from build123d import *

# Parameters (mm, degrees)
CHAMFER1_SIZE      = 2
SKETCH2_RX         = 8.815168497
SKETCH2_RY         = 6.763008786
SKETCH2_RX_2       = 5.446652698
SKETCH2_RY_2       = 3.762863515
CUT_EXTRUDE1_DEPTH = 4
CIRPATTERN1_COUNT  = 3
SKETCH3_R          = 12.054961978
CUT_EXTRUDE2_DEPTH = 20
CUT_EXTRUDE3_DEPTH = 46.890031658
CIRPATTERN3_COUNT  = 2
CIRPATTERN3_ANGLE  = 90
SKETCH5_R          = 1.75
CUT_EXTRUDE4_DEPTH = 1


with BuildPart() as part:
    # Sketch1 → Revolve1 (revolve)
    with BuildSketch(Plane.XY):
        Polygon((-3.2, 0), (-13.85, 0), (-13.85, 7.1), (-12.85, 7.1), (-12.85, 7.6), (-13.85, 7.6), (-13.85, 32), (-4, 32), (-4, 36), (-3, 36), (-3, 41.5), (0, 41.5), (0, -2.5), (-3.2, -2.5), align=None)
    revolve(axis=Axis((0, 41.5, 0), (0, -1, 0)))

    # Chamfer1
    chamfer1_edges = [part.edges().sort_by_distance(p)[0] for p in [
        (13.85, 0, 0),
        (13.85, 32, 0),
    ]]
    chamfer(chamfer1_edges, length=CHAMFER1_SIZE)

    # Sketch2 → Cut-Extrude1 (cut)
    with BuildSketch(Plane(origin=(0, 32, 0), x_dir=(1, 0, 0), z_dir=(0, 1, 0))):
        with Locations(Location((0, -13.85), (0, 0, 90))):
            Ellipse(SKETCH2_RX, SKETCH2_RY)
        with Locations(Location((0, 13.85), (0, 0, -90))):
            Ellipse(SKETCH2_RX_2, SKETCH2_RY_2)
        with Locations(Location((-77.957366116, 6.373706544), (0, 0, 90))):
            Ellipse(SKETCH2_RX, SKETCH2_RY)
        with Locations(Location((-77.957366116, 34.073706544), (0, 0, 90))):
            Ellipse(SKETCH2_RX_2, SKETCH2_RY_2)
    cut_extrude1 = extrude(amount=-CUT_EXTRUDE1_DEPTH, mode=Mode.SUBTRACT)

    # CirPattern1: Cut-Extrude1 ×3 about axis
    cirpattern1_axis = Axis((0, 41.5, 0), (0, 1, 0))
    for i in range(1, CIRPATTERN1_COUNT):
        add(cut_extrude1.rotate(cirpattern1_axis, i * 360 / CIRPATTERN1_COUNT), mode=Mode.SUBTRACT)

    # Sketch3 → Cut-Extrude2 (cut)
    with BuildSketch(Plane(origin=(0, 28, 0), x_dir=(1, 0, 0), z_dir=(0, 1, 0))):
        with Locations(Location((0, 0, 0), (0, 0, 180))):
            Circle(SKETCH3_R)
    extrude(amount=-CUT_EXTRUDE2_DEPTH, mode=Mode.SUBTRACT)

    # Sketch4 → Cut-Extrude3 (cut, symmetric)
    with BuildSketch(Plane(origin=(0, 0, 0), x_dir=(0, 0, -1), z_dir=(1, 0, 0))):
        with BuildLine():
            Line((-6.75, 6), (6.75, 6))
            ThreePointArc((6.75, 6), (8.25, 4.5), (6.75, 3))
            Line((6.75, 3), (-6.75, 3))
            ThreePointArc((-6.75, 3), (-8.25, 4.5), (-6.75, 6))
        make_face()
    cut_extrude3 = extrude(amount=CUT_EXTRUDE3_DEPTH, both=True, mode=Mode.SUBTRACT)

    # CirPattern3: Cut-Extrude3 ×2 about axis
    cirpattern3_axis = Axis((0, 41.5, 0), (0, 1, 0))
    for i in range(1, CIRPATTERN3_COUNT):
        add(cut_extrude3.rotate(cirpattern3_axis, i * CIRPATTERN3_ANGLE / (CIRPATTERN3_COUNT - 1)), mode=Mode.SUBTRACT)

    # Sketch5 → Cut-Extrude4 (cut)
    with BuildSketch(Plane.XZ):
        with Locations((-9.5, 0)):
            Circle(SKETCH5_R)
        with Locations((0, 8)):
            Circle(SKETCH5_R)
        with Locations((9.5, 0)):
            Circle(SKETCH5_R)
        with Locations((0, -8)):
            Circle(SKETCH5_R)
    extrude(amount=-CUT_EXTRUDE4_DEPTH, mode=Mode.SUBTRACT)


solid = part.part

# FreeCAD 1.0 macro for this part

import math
import FreeCAD as App
import Part
import Sketcher

V = App.Vector


def edges_at(feature, points):
    """Names of the edges that pass closest to the given points."""
    edges = feature.Shape.Edges
    near = lambda p: min(range(len(edges)), key=lambda i: edges[i].distToShape(Part.Vertex(*p))[0])
    return sorted({f"Edge{near(p) + 1}" for p in points})


def add_polygon(sketch, points):
    """Adds a closed chain of lines whose ends are joined by coincident constraints."""
    first, n = sketch.GeometryCount, len(points)
    for a, b in zip(points, points[1:] + points[:1]):
        sketch.addGeometry(Part.LineSegment(App.Vector(*a, 0), App.Vector(*b, 0)), False)
    for i in range(n):
        sketch.addConstraint(Sketcher.Constraint("Coincident", first + i, 2, first + (i + 1) % n, 1))

doc = App.newDocument("Part")
body = doc.addObject("PartDesign::Body", "Body")

# Sketch on XY plane
sketch1 = body.newObject("Sketcher::SketchObject", "Sketch")
sketch1.AttachmentSupport = (doc.getObject("XY_Plane"), [""])
sketch1.MapMode = "FlatFace"
add_polygon(sketch1, [(-13.8, 0), (-3.2, 0), (-3.2, -2.5), (0, -2.5), (0, 41.5), (-3, 41.5), (-3, 36), (-4, 36), (-4, 32), (-13.8, 32), (-13.8, 7.6), (-12.8, 7.6), (-12.8, 7.1), (-13.8, 7.1)])  # lines 0-13
sketch1.addConstraint([
    Sketcher.Constraint("Horizontal", 0),
    Sketcher.Constraint("Vertical", 1),
    Sketcher.Constraint("Horizontal", 2),
    Sketcher.Constraint("Vertical", 3),
    Sketcher.Constraint("Horizontal", 4),
    Sketcher.Constraint("Vertical", 5),
    Sketcher.Constraint("Horizontal", 6),
    Sketcher.Constraint("Vertical", 7),
    Sketcher.Constraint("Horizontal", 8),
    Sketcher.Constraint("Vertical", 9),
    Sketcher.Constraint("Horizontal", 10),
    Sketcher.Constraint("Vertical", 11),
    Sketcher.Constraint("Horizontal", 12),
    Sketcher.Constraint("Vertical", 13),
    Sketcher.Constraint("PointOnObject", 0, 2, -1),
    Sketcher.Constraint("PointOnObject", 2, 2, -2),
    Sketcher.Constraint("Vertical", 9, 2, 12, 2),
    Sketcher.Constraint("Equal", 6, 10),
    Sketcher.Constraint("DistanceX", 4, 2, 4, 1, 3.0),
    Sketcher.Constraint("DistanceX", 6, 2, 6, 1, 1.0),
    Sketcher.Constraint("DistanceY", 3, 1, 3, 2, 44.0),
    Sketcher.Constraint("DistanceY", 7, 2, 7, 1, 4.0),
    Sketcher.Constraint("DistanceX", 2, 1, 2, 2, 3.2),
    Sketcher.Constraint("DistanceY", 1, 2, 1, 1, 2.5),
    Sketcher.Constraint("DistanceY", 5, 2, 5, 1, 5.5),
    Sketcher.Constraint("DistanceY", 9, 2, 9, 1, 24.4),
    Sketcher.Constraint("DistanceY", 11, 2, 11, 1, 0.5),
    Sketcher.Constraint("DistanceX", 0, 1, 0, 2, 10.65),
])
revolution = body.newObject("PartDesign::Revolution", "Revolution")
revolution.Profile = sketch1
revolution.ReferenceAxis = (sketch1, ["V_Axis"])
revolution.Angle = 360
doc.recompute()

chamfer = body.newObject("PartDesign::Chamfer", "Chamfer")
chamfer.Base = (revolution, edges_at(revolution, [(13.85, 0, 0), (13.85, 32, 0)]))
chamfer.Size = 2

# Sketch on XZ plane
sketch2 = body.newObject("Sketcher::SketchObject", "Sketch001")
sketch2.AttachmentSupport = (doc.getObject("XZ_Plane"), [""])
sketch2.MapMode = "FlatFace"
sketch2.AttachmentOffset = App.Placement(V(0, 0, -32), App.Rotation())
sketch2.addGeometry([
    Part.Ellipse(V(0, 5.034832, 0), V(6.763009, 13.85, 0), V(0, 13.85, 0)),
    Part.Ellipse(V(0, -8.403347, 0), V(-3.762864, -13.85, 0), V(0, -13.85, 0)),
    Part.Ellipse(V(-77.957366, -15.188875, 0), V(-71.194357, -6.373707, 0), V(-77.957366, -6.373707, 0)),
    Part.Ellipse(V(-77.957366, -39.520359, 0), V(-74.194503, -34.073707, 0), V(-77.957366, -34.073707, 0)),
], False)
sketch2.addConstraint([
    Sketcher.Constraint("Block", 0),
    Sketcher.Constraint("Block", 1),
    Sketcher.Constraint("Block", 2),
    Sketcher.Constraint("Block", 3),
])
pocket1 = body.newObject("PartDesign::Pocket", "Pocket")
pocket1.Profile = sketch2
pocket1.Length = 4
pocket1.Reversed = True
doc.recompute()

polarpattern = body.newObject("PartDesign::PolarPattern", "PolarPattern")
polarpattern.Originals = [pocket1]
polarpattern.Axis = (doc.getObject("Y_Axis"), [""])
polarpattern.Angle = 360
polarpattern.Occurrences = 3
body.Tip = polarpattern

# Sketch on XZ plane
sketch3 = body.newObject("Sketcher::SketchObject", "Sketch002")
sketch3.AttachmentSupport = (doc.getObject("XZ_Plane"), [""])
sketch3.MapMode = "FlatFace"
sketch3.AttachmentOffset = App.Placement(V(0, 0, -28), App.Rotation())
sketch3.addGeometry(Part.Circle(V(0, 0, 0), V(0, 0, 1), 12), False)
sketch3.addConstraint([
    Sketcher.Constraint("Coincident", 0, 3, -1, 1),
    Sketcher.Constraint("Diameter", 0, 24.109924),
])
pocket2 = body.newObject("PartDesign::Pocket", "Pocket001")
pocket2.Profile = sketch3
pocket2.Length = 20
pocket2.Reversed = True

# Sketch on YZ plane
sketch4 = body.newObject("Sketcher::SketchObject", "Sketch003")
sketch4.AttachmentSupport = (doc.getObject("YZ_Plane"), [""])
sketch4.MapMode = "FlatFace"
sketch4.addGeometry([
    Part.LineSegment(V(6, -6.8, 0), V(6, 6.8, 0)),
    Part.ArcOfCircle(Part.Circle(V(4.5, 6.8, 0), V(0, 0, 1), 1.5), math.radians(0), math.radians(180)),
    Part.LineSegment(V(3, 6.8, 0), V(3, -6.8, 0)),
    Part.ArcOfCircle(Part.Circle(V(4.5, -6.8, 0), V(0, 0, 1), 1.5), math.radians(180), math.radians(360)),
], False)
sketch4.addConstraint([
    Sketcher.Constraint("Tangent", 0, 2, 1, 1),
    Sketcher.Constraint("Tangent", 1, 2, 2, 1),
    Sketcher.Constraint("Tangent", 2, 2, 3, 1),
    Sketcher.Constraint("Tangent", 3, 2, 0, 1),
    Sketcher.Constraint("Vertical", 0),
    Sketcher.Constraint("Vertical", 2),
    Sketcher.Constraint("Radius", 1, 1.5),
    Sketcher.Constraint("DistanceY", 0, 1, 0, 2, 13.5),
    Sketcher.Constraint("DistanceX", -1, 1, 0, 2, 6.0),
    Sketcher.Constraint("DistanceY", -1, 1, 1, 3, 6.75),
])
pocket3 = body.newObject("PartDesign::Pocket", "Pocket002")
pocket3.Profile = sketch4
pocket3.Length = 93.780063
pocket3.Midplane = True
doc.recompute()

polarpattern2 = body.newObject("PartDesign::PolarPattern", "PolarPattern001")
polarpattern2.Originals = [pocket3]
polarpattern2.Axis = (doc.getObject("Y_Axis"), [""])
polarpattern2.Angle = 90
polarpattern2.Occurrences = 2
body.Tip = polarpattern2

# Sketch on XZ plane
sketch5 = body.newObject("Sketcher::SketchObject", "Sketch004")
sketch5.AttachmentSupport = (doc.getObject("XZ_Plane"), [""])
sketch5.MapMode = "FlatFace"
sketch5.addGeometry([
    Part.Circle(V(-9.5, 0, 0), V(0, 0, 1), 1.8),
    Part.Circle(V(0, 8, 0), V(0, 0, 1), 1.8),
    Part.Circle(V(9.5, 0, 0), V(0, 0, 1), 1.8),
    Part.Circle(V(0, -8, 0), V(0, 0, 1), 1.8),
], False)
sketch5.addConstraint([
    Sketcher.Constraint("Equal", 0, 1),
    Sketcher.Constraint("Equal", 1, 2),
    Sketcher.Constraint("Equal", 2, 3),
    Sketcher.Constraint("Symmetric", 0, 3, 2, 3, -1, 1),
    Sketcher.Constraint("Symmetric", 1, 3, 3, 3, -1, 1),
    Sketcher.Constraint("PointOnObject", 0, 3, -1),
    Sketcher.Constraint("PointOnObject", 1, 3, -2),
    Sketcher.Constraint("Diameter", 0, 3.5),
    Sketcher.Constraint("DistanceY", -1, 1, 1, 3, 8.0),
    Sketcher.Constraint("DistanceX", 0, 3, 2, 3, 19.0),
])
pocket4 = body.newObject("PartDesign::Pocket", "Pocket003")
pocket4.Profile = sketch5
pocket4.Length = 1

doc.recompute()
